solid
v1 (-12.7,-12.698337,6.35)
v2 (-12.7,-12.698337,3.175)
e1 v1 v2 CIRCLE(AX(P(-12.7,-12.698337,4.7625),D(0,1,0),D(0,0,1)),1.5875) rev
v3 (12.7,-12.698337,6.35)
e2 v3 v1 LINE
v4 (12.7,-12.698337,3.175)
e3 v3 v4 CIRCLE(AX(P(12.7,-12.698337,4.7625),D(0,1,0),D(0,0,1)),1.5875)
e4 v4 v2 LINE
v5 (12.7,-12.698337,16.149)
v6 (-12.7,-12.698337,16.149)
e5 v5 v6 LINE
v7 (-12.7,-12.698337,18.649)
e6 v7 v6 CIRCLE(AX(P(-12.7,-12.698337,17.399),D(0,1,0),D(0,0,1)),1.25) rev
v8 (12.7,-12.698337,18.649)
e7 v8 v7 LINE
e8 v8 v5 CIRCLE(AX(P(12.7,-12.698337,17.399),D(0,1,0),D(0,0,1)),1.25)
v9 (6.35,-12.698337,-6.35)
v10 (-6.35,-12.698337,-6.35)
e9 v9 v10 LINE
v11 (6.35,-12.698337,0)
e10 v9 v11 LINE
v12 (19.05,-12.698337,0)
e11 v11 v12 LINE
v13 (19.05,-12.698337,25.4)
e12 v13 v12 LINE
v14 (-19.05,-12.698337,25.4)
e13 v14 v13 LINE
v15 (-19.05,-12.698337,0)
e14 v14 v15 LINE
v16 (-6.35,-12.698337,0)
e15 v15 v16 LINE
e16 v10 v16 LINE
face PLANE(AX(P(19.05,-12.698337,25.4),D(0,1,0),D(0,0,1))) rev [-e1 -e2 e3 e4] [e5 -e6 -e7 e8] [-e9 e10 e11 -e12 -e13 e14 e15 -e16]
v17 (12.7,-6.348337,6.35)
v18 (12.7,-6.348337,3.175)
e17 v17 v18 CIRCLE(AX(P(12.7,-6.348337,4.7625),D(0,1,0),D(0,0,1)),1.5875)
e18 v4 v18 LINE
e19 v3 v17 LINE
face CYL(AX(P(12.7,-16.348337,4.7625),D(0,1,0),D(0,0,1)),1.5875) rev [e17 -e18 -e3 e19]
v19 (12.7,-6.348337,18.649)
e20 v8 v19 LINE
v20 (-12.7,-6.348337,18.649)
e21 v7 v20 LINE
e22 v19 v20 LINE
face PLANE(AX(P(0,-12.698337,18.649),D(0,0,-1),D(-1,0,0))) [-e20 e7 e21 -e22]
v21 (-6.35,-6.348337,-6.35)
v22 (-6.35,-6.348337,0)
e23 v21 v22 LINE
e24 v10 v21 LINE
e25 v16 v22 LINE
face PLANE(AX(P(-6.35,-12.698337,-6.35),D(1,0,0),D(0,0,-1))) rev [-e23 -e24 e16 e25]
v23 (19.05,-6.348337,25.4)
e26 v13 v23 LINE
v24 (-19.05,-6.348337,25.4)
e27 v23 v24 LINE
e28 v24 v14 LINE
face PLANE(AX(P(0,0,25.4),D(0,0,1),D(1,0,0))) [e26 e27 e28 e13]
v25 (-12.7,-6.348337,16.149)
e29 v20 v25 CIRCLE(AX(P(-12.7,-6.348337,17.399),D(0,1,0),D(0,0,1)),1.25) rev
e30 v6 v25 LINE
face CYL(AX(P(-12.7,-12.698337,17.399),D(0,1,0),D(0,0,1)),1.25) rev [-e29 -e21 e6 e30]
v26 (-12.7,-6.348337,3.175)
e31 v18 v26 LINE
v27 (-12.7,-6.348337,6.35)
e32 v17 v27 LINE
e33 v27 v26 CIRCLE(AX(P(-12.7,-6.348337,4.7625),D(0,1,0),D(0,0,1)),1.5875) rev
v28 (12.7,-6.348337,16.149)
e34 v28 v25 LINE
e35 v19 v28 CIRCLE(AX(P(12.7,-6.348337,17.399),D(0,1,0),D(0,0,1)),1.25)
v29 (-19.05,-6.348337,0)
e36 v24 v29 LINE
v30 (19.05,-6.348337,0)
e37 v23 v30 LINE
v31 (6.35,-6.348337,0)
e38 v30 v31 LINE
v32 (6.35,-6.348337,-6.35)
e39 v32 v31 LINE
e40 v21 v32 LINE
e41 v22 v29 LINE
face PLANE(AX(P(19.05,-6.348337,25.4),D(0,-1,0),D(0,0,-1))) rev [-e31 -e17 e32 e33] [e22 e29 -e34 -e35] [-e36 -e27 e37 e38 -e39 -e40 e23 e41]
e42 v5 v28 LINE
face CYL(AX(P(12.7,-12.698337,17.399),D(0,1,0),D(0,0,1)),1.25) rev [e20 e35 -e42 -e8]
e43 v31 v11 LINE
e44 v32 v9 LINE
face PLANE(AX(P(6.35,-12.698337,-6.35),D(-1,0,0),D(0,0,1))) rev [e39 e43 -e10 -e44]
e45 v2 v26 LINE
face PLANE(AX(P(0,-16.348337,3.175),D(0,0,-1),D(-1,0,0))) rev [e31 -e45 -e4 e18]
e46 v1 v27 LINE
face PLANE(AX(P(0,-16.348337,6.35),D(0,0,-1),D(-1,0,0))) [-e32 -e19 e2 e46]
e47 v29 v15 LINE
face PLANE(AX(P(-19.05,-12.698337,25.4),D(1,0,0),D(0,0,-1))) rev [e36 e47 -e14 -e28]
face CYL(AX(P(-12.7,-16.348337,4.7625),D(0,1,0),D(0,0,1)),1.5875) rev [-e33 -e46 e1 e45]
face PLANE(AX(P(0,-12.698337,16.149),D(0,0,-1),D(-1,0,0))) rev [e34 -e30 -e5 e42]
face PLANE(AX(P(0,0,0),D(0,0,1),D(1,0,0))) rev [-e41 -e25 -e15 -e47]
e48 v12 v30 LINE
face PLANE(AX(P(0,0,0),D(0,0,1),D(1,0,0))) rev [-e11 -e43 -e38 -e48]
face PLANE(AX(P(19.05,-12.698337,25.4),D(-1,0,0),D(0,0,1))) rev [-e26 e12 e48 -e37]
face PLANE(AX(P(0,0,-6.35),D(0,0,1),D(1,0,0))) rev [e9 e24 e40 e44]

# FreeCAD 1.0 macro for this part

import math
import FreeCAD as App
import Part
import Sketcher
from FreeCAD import Vector
Q = App.Units.Quantity

doc = App.newDocument("Part")
body = doc.addObject("PartDesign::Body", "Body")

# Sketch on XY plane
sketch1 = body.newObject("Sketcher::SketchObject", "Sketch")
sketch1.AttachmentSupport = (doc.getObject("XY_Plane"), [""])
sketch1.MapMode = "FlatFace"
sketch1.addGeometry([
    Part.LineSegment(Vector(-19, -6, 0), Vector(-19, -13, 0)),
    Part.LineSegment(Vector(-19, -13, 0), Vector(19, -13, 0)),
    Part.LineSegment(Vector(19, -13, 0), Vector(19, -6, 0)),
    Part.LineSegment(Vector(19, -6, 0), Vector(-19, -6, 0)),
], False)
sketch1.addConstraint([
    Sketcher.Constraint("Coincident", 0, 2, 1, 1),
    Sketcher.Constraint("Coincident", 1, 2, 2, 1),
    Sketcher.Constraint("Coincident", 2, 2, 3, 1),
    Sketcher.Constraint("Coincident", 3, 2, 0, 1),
    Sketcher.Constraint("Vertical", 0),
    Sketcher.Constraint("Horizontal", 1),
    Sketcher.Constraint("Vertical", 2),
    Sketcher.Constraint("Horizontal", 3),
    Sketcher.Constraint("DistanceX", 1, 1, 1, 2, Q("1.5 in")),
    Sketcher.Constraint("DistanceY", 0, 2, 0, 1, Q("0.25 in")),
    Sketcher.Constraint("DistanceX", 0, 2, -1, 1, Q("0.75 in")),
    Sketcher.Constraint("DistanceY", 0, 2, -1, 1, Q("12.698337 mm")),
])
pad1 = body.newObject("PartDesign::Pad", "Pad")
pad1.Profile = sketch1
pad1.Length = Q("1 in")

# Sketch on XZ plane
sketch2 = body.newObject("Sketcher::SketchObject", "Sketch001")
sketch2.AttachmentSupport = (doc.getObject("XZ_Plane"), [""])
sketch2.MapMode = "FlatFace"
sketch2.AttachmentOffset = App.Placement(Vector(0, 0, 6.348337), App.Rotation())
sketch2.addGeometry([
    Part.LineSegment(Vector(-12.7, 18.6, 0), Vector(12.7, 18.6, 0)),
    Part.ArcOfCircle(Part.Circle(Vector(12.7, 17.4, 0), Vector(0, 0, 1), 1.2), math.radians(-90), math.radians(90)),
    Part.LineSegment(Vector(12.7, 16.1, 0), Vector(-12.7, 16.1, 0)),
    Part.ArcOfCircle(Part.Circle(Vector(-12.7, 17.4, 0), Vector(0, 0, 1), 1.2), math.radians(90), math.radians(270)),
], False)
sketch2.addConstraint([
    Sketcher.Constraint("Tangent", 0, 2, 1, 2),
    Sketcher.Constraint("Tangent", 1, 1, 2, 1),
    Sketcher.Constraint("Tangent", 2, 2, 3, 2),
    Sketcher.Constraint("Tangent", 3, 1, 0, 1),
    Sketcher.Constraint("Horizontal", 0),
    Sketcher.Constraint("Horizontal", 2),
    Sketcher.Constraint("DistanceX", 0, 1, 0, 2, Q("1 in")),
    Sketcher.Constraint("DistanceX", -1, 1, 1, 3, Q("0.5 in")),
    Sketcher.Constraint("Radius", 1, Q("1.25 mm")),
    Sketcher.Constraint("DistanceY", -1, 1, 1, 3, Q("0.685 in")),
])
pocket1 = body.newObject("PartDesign::Pocket", "Pocket")
pocket1.Profile = sketch2
pocket1.Type = "ThroughAll"
pocket1.Reversed = True

# Sketch on XY plane
sketch3 = body.newObject("Sketcher::SketchObject", "Sketch002")
sketch3.AttachmentSupport = (doc.getObject("XY_Plane"), [""])
sketch3.MapMode = "FlatFace"
sketch3.addGeometry([
    Part.LineSegment(Vector(6, -6, 0), Vector(6, -13, 0)),
    Part.LineSegment(Vector(6, -13, 0), Vector(-6, -13, 0)),
    Part.LineSegment(Vector(-6, -13, 0), Vector(-6, -6, 0)),
    Part.LineSegment(Vector(-6, -6, 0), Vector(6, -6, 0)),
], False)
sketch3.addConstraint([
    Sketcher.Constraint("Coincident", 0, 2, 1, 1),
    Sketcher.Constraint("Coincident", 1, 2, 2, 1),
    Sketcher.Constraint("Coincident", 2, 2, 3, 1),
    Sketcher.Constraint("Coincident", 3, 2, 0, 1),
    Sketcher.Constraint("Vertical", 0),
    Sketcher.Constraint("Horizontal", 1),
    Sketcher.Constraint("Vertical", 2),
    Sketcher.Constraint("Horizontal", 3),
    Sketcher.Constraint("DistanceX", 1, 2, 1, 1, Q("0.5 in")),
    Sketcher.Constraint("DistanceY", 0, 2, 0, 1, Q("0.25 in")),
    Sketcher.Constraint("DistanceX", -1, 1, 0, 2, Q("0.25 in")),
    Sketcher.Constraint("DistanceY", 0, 2, -1, 1, Q("12.698337 mm")),
])
pad2 = body.newObject("PartDesign::Pad", "Pad001")
pad2.Profile = sketch3
pad2.Length = Q("0.25 in")
pad2.Reversed = True

# Sketch on XZ plane
sketch4 = body.newObject("Sketcher::SketchObject", "Sketch003")
sketch4.AttachmentSupport = (doc.getObject("XZ_Plane"), [""])
sketch4.MapMode = "FlatFace"
sketch4.AttachmentOffset = App.Placement(Vector(0, 0, 6.348337), App.Rotation())
sketch4.addGeometry([
    Part.LineSegment(Vector(-12.7, 6.3, 0), Vector(12.7, 6.3, 0)),
    Part.ArcOfCircle(Part.Circle(Vector(12.7, 4.8, 0), Vector(0, 0, 1), 1.6), math.radians(-90), math.radians(90)),
    Part.LineSegment(Vector(12.7, 3.2, 0), Vector(-12.7, 3.2, 0)),
    Part.ArcOfCircle(Part.Circle(Vector(-12.7, 4.8, 0), Vector(0, 0, 1), 1.6), math.radians(90), math.radians(270)),
], False)
sketch4.addConstraint([
    Sketcher.Constraint("Tangent", 0, 2, 1, 2),
    Sketcher.Constraint("Tangent", 1, 1, 2, 1),
    Sketcher.Constraint("Tangent", 2, 2, 3, 2),
    Sketcher.Constraint("Tangent", 3, 1, 0, 1),
    Sketcher.Constraint("Horizontal", 0),
    Sketcher.Constraint("Horizontal", 2),
    Sketcher.Constraint("DistanceX", 0, 1, 0, 2, Q("1 in")),
    Sketcher.Constraint("Radius", 1, Q("0.0625 in")),
    Sketcher.Constraint("DistanceX", -1, 1, 1, 3, Q("0.5 in")),
    Sketcher.Constraint("DistanceY", -1, 1, 0, 2, Q("0.25 in")),
])
pocket2 = body.newObject("PartDesign::Pocket", "Pocket001")
pocket2.Profile = sketch4
pocket2.Length = 10
pocket2.Reversed = True

doc.recompute()
